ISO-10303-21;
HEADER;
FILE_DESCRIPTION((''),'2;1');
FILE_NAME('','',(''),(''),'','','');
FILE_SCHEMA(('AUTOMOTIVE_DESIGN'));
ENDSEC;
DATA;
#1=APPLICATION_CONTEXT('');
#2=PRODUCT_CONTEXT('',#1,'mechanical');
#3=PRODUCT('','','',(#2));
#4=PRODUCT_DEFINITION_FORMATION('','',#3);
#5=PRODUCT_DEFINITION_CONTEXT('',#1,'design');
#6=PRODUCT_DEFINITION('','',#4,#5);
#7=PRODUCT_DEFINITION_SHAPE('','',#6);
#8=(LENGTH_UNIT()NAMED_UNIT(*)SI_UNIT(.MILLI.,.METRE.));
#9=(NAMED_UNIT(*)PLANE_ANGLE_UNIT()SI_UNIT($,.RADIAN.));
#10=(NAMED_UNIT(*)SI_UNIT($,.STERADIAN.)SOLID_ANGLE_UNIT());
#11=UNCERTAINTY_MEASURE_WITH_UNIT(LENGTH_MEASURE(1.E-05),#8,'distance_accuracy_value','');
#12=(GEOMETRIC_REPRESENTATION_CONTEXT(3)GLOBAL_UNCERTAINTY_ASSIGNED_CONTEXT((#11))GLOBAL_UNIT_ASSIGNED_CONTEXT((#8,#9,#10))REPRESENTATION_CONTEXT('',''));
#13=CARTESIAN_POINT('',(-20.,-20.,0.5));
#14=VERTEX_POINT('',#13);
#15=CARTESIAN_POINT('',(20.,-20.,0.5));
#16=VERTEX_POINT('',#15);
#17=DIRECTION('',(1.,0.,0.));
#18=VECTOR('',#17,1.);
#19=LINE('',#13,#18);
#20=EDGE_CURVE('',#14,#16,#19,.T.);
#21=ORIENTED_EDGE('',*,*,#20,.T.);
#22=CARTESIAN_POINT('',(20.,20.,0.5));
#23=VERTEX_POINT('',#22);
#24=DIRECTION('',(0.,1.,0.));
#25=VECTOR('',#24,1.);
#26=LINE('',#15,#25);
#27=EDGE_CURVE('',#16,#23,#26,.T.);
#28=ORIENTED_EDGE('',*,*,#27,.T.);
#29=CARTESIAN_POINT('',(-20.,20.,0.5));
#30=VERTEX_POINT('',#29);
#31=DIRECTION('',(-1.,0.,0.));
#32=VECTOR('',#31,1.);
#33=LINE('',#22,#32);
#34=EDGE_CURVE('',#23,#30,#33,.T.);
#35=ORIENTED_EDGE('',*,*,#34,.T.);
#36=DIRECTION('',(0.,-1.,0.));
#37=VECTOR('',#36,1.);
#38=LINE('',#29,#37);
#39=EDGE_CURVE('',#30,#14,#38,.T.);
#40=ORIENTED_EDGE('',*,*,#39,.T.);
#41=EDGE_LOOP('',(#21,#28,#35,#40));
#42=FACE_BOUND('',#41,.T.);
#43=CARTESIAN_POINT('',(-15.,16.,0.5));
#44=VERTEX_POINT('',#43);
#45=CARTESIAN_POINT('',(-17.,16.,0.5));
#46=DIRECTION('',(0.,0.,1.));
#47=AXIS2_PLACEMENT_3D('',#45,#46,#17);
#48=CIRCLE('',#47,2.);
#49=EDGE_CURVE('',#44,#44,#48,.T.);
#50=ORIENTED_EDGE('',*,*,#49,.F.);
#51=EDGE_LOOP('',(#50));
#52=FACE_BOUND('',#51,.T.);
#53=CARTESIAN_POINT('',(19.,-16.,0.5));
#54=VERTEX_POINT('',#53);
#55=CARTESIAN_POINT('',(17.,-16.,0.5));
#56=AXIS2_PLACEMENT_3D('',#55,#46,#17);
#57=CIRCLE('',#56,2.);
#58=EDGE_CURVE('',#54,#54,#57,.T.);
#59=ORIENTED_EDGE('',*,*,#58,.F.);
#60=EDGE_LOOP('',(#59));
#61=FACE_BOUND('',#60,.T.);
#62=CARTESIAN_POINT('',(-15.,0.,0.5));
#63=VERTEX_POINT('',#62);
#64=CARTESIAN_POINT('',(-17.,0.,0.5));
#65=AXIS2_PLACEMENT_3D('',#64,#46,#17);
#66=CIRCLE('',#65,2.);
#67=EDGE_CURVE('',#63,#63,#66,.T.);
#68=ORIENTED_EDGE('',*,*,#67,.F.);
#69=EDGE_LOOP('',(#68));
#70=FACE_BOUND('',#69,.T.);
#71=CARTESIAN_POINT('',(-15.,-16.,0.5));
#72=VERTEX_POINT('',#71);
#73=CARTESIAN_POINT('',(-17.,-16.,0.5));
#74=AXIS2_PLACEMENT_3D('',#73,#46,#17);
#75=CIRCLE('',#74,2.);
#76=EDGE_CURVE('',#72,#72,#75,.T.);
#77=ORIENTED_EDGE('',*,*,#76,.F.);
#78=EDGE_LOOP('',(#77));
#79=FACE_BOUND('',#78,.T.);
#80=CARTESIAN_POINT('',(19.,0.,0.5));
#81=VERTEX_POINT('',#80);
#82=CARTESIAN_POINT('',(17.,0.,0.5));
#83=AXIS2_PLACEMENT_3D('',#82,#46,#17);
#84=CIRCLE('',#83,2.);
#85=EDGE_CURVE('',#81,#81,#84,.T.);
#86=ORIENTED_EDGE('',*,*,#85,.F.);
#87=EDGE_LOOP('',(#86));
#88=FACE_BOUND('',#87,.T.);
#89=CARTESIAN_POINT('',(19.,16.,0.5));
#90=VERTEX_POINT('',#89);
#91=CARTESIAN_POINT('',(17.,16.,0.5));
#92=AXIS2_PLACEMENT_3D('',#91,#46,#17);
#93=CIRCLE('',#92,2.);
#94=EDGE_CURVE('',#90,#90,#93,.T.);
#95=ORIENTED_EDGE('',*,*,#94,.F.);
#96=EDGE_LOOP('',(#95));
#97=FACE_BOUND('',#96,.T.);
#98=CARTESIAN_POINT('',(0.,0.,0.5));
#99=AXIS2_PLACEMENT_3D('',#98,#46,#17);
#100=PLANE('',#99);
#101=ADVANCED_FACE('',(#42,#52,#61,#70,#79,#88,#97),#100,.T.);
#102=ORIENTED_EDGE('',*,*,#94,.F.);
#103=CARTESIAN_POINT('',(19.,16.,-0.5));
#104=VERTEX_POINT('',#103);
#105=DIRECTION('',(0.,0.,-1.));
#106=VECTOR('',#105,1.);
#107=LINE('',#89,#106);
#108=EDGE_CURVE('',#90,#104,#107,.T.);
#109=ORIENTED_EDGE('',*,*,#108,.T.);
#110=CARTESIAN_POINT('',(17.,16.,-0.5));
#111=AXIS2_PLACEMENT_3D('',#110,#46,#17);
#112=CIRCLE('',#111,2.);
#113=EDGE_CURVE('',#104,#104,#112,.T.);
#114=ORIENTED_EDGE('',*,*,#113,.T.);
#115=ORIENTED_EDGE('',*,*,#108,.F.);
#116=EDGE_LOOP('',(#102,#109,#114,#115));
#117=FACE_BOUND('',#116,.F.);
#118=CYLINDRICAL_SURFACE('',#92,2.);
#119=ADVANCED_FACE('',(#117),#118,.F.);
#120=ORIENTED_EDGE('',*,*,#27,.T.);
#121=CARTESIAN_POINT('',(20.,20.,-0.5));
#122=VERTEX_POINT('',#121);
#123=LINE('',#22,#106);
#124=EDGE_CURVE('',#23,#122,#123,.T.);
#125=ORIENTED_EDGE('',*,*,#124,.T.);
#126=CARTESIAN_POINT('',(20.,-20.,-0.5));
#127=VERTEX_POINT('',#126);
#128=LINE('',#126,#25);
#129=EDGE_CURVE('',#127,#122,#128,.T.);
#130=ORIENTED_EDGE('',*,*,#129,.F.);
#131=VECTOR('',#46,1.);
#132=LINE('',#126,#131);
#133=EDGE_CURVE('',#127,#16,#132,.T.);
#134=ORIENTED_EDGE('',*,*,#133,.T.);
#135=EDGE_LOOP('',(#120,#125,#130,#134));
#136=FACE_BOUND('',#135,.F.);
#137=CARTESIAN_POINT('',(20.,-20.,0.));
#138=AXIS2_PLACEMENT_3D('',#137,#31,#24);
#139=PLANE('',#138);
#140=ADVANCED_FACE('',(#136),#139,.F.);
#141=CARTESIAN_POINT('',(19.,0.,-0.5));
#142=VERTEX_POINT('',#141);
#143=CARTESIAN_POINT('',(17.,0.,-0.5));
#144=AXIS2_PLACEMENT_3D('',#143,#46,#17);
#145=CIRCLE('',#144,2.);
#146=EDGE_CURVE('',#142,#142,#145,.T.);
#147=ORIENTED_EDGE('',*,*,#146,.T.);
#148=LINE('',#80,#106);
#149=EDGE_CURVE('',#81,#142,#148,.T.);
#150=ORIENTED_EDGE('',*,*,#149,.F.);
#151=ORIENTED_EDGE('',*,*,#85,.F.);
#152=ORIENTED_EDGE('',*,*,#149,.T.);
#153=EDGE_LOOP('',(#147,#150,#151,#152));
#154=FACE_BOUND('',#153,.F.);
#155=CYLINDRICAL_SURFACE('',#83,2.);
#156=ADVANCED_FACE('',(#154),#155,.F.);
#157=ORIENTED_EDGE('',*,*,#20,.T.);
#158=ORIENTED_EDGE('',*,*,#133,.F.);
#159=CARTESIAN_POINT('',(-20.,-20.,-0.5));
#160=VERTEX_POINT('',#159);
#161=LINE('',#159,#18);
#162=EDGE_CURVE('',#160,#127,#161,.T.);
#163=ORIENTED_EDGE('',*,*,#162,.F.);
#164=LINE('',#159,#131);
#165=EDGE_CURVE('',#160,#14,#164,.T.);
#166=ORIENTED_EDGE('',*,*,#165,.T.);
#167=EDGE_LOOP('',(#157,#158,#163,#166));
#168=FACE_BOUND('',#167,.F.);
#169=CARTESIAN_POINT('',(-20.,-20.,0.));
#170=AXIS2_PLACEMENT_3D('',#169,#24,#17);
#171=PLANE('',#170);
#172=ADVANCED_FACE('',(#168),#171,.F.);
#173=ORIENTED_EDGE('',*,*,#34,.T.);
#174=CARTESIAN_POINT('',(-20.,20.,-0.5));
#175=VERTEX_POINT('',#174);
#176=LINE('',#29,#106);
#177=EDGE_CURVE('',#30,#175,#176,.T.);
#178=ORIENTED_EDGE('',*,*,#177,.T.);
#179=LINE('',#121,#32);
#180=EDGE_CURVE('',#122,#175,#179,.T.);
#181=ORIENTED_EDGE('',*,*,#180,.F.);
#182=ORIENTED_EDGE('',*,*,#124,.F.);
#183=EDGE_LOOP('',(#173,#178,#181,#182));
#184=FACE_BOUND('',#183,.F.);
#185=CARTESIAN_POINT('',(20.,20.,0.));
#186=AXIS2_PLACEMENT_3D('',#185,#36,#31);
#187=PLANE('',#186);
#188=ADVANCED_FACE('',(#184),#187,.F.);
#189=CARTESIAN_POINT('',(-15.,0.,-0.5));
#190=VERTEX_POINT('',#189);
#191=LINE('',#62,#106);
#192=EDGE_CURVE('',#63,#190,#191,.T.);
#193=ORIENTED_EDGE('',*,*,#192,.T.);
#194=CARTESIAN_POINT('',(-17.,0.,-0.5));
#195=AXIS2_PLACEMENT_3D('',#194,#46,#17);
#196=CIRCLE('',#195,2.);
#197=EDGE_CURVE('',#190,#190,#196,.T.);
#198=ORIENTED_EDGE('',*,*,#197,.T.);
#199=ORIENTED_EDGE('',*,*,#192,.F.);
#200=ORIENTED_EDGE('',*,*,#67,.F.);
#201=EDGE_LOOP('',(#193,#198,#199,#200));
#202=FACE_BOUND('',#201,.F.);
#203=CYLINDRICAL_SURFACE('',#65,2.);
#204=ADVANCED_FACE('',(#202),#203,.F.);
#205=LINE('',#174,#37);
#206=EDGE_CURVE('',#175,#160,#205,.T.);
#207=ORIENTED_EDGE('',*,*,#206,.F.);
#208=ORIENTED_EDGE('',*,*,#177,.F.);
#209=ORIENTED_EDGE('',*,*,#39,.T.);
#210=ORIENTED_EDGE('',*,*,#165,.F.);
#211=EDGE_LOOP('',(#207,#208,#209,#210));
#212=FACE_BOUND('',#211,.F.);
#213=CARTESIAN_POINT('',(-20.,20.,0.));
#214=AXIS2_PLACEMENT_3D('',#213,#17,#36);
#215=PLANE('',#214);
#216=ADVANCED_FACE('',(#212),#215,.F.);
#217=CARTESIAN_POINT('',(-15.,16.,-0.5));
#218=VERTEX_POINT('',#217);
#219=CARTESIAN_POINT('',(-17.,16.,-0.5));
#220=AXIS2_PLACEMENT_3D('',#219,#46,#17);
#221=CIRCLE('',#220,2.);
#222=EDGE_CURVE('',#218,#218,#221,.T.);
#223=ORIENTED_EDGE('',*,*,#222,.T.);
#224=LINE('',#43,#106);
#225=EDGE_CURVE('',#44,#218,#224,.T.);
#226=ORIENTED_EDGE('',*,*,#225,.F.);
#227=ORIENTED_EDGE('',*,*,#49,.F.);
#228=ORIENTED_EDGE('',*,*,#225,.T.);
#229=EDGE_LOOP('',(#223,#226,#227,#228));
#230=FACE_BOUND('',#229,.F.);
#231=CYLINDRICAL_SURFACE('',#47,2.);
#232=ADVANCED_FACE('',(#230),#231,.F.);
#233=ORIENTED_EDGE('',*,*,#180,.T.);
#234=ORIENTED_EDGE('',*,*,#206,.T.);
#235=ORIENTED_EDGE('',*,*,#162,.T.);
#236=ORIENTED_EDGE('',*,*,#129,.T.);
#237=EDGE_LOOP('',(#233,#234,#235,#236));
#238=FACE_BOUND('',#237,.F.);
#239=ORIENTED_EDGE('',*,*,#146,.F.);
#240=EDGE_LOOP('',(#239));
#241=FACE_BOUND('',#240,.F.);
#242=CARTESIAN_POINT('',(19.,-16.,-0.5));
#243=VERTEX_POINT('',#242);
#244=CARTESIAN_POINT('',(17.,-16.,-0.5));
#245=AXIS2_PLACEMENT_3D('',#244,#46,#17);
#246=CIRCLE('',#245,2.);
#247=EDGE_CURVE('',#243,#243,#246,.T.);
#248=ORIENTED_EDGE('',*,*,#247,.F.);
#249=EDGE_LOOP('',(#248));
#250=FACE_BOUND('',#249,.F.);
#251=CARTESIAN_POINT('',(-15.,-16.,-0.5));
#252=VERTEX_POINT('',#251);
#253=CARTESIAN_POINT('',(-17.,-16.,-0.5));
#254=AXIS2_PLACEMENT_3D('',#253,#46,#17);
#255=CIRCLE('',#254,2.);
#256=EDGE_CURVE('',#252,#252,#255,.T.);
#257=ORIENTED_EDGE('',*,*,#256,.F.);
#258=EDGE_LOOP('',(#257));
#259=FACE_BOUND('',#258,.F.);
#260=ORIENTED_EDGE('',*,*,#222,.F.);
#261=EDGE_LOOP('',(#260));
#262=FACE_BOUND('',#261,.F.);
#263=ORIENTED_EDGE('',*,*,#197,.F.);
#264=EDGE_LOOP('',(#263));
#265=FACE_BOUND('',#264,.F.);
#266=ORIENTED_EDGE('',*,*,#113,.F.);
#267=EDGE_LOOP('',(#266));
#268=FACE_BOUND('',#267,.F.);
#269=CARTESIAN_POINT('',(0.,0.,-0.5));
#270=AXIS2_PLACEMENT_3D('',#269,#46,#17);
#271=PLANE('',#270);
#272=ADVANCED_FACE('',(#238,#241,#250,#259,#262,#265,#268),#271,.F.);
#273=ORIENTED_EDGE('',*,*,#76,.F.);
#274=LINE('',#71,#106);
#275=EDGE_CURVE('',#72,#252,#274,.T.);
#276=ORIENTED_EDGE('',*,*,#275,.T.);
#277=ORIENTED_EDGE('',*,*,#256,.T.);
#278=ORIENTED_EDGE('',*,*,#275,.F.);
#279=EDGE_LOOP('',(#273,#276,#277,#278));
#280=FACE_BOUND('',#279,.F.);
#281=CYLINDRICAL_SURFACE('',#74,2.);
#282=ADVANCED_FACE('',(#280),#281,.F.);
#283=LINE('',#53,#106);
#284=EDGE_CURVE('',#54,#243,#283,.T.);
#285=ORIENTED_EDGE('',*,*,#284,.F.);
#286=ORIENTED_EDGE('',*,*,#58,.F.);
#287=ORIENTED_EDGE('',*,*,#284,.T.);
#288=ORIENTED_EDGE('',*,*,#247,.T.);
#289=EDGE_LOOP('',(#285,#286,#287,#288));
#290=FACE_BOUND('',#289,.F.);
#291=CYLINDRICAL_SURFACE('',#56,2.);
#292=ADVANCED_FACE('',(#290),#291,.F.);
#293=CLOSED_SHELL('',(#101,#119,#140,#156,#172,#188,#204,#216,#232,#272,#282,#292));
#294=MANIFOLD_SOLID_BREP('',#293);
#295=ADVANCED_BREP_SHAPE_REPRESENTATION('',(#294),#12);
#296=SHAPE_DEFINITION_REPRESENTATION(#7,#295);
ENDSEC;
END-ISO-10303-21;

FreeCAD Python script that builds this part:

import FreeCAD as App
import Part
import Sketcher
from FreeCAD import Vector
Q = App.Units.Quantity

doc = App.newDocument("Part")
body = doc.addObject("PartDesign::Body", "Body")

# Sketch on XY plane
sketch1 = body.newObject("Sketcher::SketchObject", "Sketch")
sketch1.AttachmentSupport = (doc.getObject("XY_Plane"), [""])
sketch1.MapMode = "FlatFace"
sketch1.addGeometry([
    Part.LineSegment(Vector(-20, 20, 0), Vector(-20, -20, 0)),
    Part.LineSegment(Vector(-20, -20, 0), Vector(20, -20, 0)),
    Part.LineSegment(Vector(20, -20, 0), Vector(20, 20, 0)),
    Part.LineSegment(Vector(20, 20, 0), Vector(-20, 20, 0)),
], False)
sketch1.addConstraint([
    Sketcher.Constraint("Coincident", 0, 2, 1, 1),
    Sketcher.Constraint("Coincident", 1, 2, 2, 1),
    Sketcher.Constraint("Coincident", 2, 2, 3, 1),
    Sketcher.Constraint("Coincident", 3, 2, 0, 1),
    Sketcher.Constraint("Vertical", 0),
    Sketcher.Constraint("Horizontal", 1),
    Sketcher.Constraint("Vertical", 2),
    Sketcher.Constraint("Horizontal", 3),
    Sketcher.Constraint("Symmetric", 0, 2, 2, 2, -1, 1),
    Sketcher.Constraint("Equal", 3, 0),
    Sketcher.Constraint("DistanceX", 1, 1, 1, 2, Q("40 mm")),
])
pad1 = body.newObject("PartDesign::Pad", "Pad")
pad1.Profile = sketch1
pad1.Length = 1
pad1.Midplane = True

# Sketch on XY plane
sketch2 = body.newObject("Sketcher::SketchObject", "Sketch001")
sketch2.AttachmentSupport = (doc.getObject("XY_Plane"), [""])
sketch2.MapMode = "FlatFace"
sketch2.AttachmentOffset = App.Placement(Vector(0, 0, 0.5), App.Rotation())
sketch2.addGeometry([
    Part.Circle(Vector(-17, 16, 0), Vector(0, 0, 1), 2),  # 0
    Part.Circle(Vector(-17, 0, 0), Vector(0, 0, 1), 2),  # 1
    Part.Circle(Vector(-17, -16, 0), Vector(0, 0, 1), 2),  # 2
    Part.Circle(Vector(17, 16, 0), Vector(0, 0, 1), 2),  # 3
    Part.Circle(Vector(17, 0, 0), Vector(0, 0, 1), 2),  # 4
    Part.Circle(Vector(17, -16, 0), Vector(0, 0, 1), 2),  # 5
], False)
sketch2.addConstraint([
    Sketcher.Constraint("Equal", 0, 1),
    Sketcher.Constraint("Equal", 1, 2),
    Sketcher.Constraint("Equal", 2, 3),
    Sketcher.Constraint("Equal", 3, 4),
    Sketcher.Constraint("Equal", 4, 5),
    Sketcher.Constraint("Symmetric", 2, 3, 3, 3, -1, 1),
    Sketcher.Constraint("Symmetric", 1, 3, 4, 3, -1, 1),
    Sketcher.Constraint("Symmetric", 0, 3, 5, 3, -1, 1),
    Sketcher.Constraint("Symmetric", 0, 3, 3, 3, -2),
    Sketcher.Constraint("PointOnObject", 1, 3, -1),
    Sketcher.Constraint("Vertical", 0, 3, 1, 3),
    Sketcher.Constraint("Diameter", 0, Q("4 mm")),
    Sketcher.Constraint("DistanceY", -1, 1, 0, 3, Q("16 mm")),
    Sketcher.Constraint("DistanceX", 0, 3, 3, 3, Q("34 mm")),
])
pocket1 = body.newObject("PartDesign::Pocket", "Pocket")
pocket1.Profile = sketch2
pocket1.Length = 1

doc.recompute()
